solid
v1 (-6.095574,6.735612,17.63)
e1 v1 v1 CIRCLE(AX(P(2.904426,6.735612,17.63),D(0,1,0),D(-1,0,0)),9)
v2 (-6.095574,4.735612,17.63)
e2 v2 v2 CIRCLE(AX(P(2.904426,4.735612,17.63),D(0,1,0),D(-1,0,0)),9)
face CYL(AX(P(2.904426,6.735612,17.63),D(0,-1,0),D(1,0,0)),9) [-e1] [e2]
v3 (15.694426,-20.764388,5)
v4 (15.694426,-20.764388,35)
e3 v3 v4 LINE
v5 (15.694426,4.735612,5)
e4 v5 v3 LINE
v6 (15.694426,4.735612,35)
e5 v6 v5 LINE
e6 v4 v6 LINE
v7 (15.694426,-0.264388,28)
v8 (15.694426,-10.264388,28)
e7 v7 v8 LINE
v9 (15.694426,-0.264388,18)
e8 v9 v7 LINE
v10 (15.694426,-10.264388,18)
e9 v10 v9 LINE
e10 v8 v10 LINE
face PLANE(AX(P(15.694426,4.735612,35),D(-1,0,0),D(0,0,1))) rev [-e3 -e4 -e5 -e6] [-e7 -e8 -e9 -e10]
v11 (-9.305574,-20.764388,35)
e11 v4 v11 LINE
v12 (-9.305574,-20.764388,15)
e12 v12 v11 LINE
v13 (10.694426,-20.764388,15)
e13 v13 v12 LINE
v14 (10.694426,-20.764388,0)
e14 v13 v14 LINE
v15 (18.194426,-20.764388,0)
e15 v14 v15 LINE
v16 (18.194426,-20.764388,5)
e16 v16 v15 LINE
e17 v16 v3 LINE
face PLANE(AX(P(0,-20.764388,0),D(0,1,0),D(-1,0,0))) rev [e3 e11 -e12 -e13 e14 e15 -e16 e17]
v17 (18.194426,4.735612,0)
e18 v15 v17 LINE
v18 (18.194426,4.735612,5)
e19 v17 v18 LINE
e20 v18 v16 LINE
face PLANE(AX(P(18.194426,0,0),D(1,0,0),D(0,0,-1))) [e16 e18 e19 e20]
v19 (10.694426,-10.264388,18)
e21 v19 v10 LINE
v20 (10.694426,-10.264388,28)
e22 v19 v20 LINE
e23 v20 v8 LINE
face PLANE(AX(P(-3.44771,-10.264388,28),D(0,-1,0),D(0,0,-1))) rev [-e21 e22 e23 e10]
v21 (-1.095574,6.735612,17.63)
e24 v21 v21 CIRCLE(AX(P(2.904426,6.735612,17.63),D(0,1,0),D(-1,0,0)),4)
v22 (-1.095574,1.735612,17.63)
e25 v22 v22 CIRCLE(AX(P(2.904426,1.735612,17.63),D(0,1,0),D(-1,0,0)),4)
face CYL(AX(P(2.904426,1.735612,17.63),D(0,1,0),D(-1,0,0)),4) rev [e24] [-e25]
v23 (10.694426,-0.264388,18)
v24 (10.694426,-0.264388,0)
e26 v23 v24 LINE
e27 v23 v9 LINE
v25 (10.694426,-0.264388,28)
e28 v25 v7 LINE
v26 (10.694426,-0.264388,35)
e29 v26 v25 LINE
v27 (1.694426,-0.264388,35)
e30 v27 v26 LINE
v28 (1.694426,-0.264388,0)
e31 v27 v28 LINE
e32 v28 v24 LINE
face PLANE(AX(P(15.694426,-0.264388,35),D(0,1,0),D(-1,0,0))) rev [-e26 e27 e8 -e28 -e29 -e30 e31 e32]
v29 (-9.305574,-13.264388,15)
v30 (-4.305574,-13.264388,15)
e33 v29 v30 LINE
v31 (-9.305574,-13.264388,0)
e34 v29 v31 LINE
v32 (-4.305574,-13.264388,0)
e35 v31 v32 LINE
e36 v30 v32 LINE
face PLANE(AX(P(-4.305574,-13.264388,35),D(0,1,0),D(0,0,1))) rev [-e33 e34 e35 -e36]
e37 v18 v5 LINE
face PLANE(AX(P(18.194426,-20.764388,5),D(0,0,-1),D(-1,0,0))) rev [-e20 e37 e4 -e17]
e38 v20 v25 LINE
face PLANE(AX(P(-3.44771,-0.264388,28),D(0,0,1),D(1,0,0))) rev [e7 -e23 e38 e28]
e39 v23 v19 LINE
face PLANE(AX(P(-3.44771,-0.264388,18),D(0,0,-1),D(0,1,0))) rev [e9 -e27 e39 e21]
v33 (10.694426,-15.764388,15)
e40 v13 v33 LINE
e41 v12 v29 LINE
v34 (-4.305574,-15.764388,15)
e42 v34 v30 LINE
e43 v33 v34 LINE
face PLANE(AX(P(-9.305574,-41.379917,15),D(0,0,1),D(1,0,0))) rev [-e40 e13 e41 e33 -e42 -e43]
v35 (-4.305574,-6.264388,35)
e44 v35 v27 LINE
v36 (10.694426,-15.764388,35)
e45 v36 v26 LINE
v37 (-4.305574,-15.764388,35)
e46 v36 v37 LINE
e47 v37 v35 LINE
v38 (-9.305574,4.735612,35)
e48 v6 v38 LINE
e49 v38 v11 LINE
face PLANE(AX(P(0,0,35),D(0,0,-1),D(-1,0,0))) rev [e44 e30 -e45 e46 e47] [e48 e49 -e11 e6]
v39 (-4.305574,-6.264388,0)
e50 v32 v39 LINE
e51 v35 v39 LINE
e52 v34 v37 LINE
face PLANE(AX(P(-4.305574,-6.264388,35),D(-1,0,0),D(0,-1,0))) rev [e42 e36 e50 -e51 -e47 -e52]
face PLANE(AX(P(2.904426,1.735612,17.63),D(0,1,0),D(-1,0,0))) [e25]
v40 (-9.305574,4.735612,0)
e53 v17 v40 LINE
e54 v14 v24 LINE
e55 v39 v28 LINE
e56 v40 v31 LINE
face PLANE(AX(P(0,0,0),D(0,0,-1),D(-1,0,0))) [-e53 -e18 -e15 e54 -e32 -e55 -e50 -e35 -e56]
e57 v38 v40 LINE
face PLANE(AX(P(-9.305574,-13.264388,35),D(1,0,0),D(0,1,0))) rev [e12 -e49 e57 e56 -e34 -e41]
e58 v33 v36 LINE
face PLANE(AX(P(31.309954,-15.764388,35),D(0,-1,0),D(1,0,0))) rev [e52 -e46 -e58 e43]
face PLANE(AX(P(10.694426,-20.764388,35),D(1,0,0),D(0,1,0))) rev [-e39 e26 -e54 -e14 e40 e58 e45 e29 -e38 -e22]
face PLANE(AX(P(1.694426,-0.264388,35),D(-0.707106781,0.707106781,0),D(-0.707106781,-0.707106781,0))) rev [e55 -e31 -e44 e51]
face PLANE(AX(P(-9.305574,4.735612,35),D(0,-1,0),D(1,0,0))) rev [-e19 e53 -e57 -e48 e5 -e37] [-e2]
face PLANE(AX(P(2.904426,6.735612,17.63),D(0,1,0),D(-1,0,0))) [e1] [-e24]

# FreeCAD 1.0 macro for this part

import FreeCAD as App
import Part
import Sketcher
from FreeCAD import Vector

doc = App.newDocument("Part")
body = doc.addObject("PartDesign::Body", "Body")

# Sketch on XY plane
sketch1 = body.newObject("Sketcher::SketchObject", "Sketch")
sketch1.AttachmentSupport = (doc.getObject("XY_Plane"), [""])
sketch1.MapMode = "FlatFace"
sketch1.addGeometry(Part.LineSegment(Vector(15.694426, 4.735612, 0), Vector(-9.305574, 4.735612, 0)), False)
sketch1.addGeometry(Part.LineSegment(Vector(-9.305574, 4.735612, 0), Vector(-9.305574, -13.264388, 0)), False)
sketch1.addGeometry(Part.LineSegment(Vector(-9.305574, -13.264388, 0), Vector(-4.305574, -13.264388, 0)), False)
sketch1.addGeometry(Part.LineSegment(Vector(-4.305574, -13.264388, 0), Vector(-4.305574, -6.264388, 0)), False)
sketch1.addGeometry(Part.LineSegment(Vector(-4.305574, -6.264388, 0), Vector(1.694426, -0.264388, 0)), False)
sketch1.addGeometry(Part.LineSegment(Vector(1.694426, -0.264388, 0), Vector(15.694426, -0.264388, 0)), False)
sketch1.addGeometry(Part.LineSegment(Vector(15.694426, -0.264388, 0), Vector(15.694426, 4.735612, 0)), False)
sketch1.addConstraint(Sketcher.Constraint("Coincident", 0, 2, 1, 1))
sketch1.addConstraint(Sketcher.Constraint("Coincident", 1, 2, 2, 1))
sketch1.addConstraint(Sketcher.Constraint("Coincident", 2, 2, 3, 1))
sketch1.addConstraint(Sketcher.Constraint("Coincident", 3, 2, 4, 1))
sketch1.addConstraint(Sketcher.Constraint("Coincident", 4, 2, 5, 1))
sketch1.addConstraint(Sketcher.Constraint("Coincident", 5, 2, 6, 1))
sketch1.addConstraint(Sketcher.Constraint("Coincident", 6, 2, 0, 1))
sketch1.addConstraint(Sketcher.Constraint("Horizontal", 0))
sketch1.addConstraint(Sketcher.Constraint("Vertical", 1))
sketch1.addConstraint(Sketcher.Constraint("Horizontal", 2))
sketch1.addConstraint(Sketcher.Constraint("Vertical", 3))
sketch1.addConstraint(Sketcher.Constraint("Horizontal", 5))
sketch1.addConstraint(Sketcher.Constraint("Vertical", 6))
sketch1.addConstraint(Sketcher.Constraint("Equal", 2, 6))
sketch1.addConstraint(Sketcher.Constraint("DistanceX", 0, 2, 0, 1, 25.0))
sketch1.addConstraint(Sketcher.Constraint("DistanceX", 2, 1, 2, 2, 5.0))
sketch1.addConstraint(Sketcher.Constraint("DistanceX", 5, 1, 5, 2, 14.0))
sketch1.addConstraint(Sketcher.Constraint("DistanceY", 1, 2, 1, 1, 18.0))
sketch1.addConstraint(Sketcher.Constraint("DistanceY", 3, 1, 3, 2, 7.0))
sketch1.addConstraint(Sketcher.Constraint("DistanceY", -1, 1, 0, 2, 4.735612))
sketch1.addConstraint(Sketcher.Constraint("DistanceX", 0, 2, -1, 1, 9.305574))
pad1 = body.newObject("PartDesign::Pad", "Pad")
pad1.Profile = sketch1
pad1.Length = 35

# Sketch on XZ plane
sketch2 = body.newObject("Sketcher::SketchObject", "Sketch001")
sketch2.AttachmentSupport = (doc.getObject("XZ_Plane"), [""])
sketch2.MapMode = "FlatFace"
sketch2.AttachmentOffset = App.Placement(Vector(0, 0, -4.735612), App.Rotation())
sketch2.addGeometry(Part.Circle(Vector(2.904426, 17.63, 0), Vector(0, 0, 1), 9), False)
sketch2.addConstraint(Sketcher.Constraint("Diameter", 0, 18.0))
sketch2.addConstraint(Sketcher.Constraint("DistanceY", -1, 1, 0, 3, 17.63))
sketch2.addConstraint(Sketcher.Constraint("DistanceX", -1, 1, 0, 3, 2.904426))
pad2 = body.newObject("PartDesign::Pad", "Pad001")
pad2.Profile = sketch2
pad2.Length = 2
pad2.Reversed = True

# Sketch on XZ plane
sketch3 = body.newObject("Sketcher::SketchObject", "Sketch002")
sketch3.AttachmentSupport = (doc.getObject("XZ_Plane"), [""])
sketch3.MapMode = "FlatFace"
sketch3.AttachmentOffset = App.Placement(Vector(0, 0, -6.735612), App.Rotation())
sketch3.addGeometry(Part.Circle(Vector(2.904426, 17.63, 0), Vector(0, 0, 1), 4), False)
sketch3.addConstraint(Sketcher.Constraint("Diameter", 0, 8.0))
sketch3.addConstraint(Sketcher.Constraint("DistanceY", -1, 1, 0, 3, 17.63))
sketch3.addConstraint(Sketcher.Constraint("DistanceX", -1, 1, 0, 3, 2.904426))
pocket1 = body.newObject("PartDesign::Pocket", "Pocket")
pocket1.Profile = sketch3
pocket1.Length = 5
pocket1.Reversed = True

# Sketch on XZ plane
sketch4 = body.newObject("Sketcher::SketchObject", "Sketch003")
sketch4.AttachmentSupport = (doc.getObject("XZ_Plane"), [""])
sketch4.MapMode = "FlatFace"
sketch4.AttachmentOffset = App.Placement(Vector(0, 0, 0.264388), App.Rotation())
sketch4.addGeometry(Part.LineSegment(Vector(10.694426, 35, 0), Vector(10.694426, 0, 0)), False)
sketch4.addGeometry(Part.LineSegment(Vector(10.694426, 0, 0), Vector(15.694426, 0, 0)), False)
sketch4.addGeometry(Part.LineSegment(Vector(15.694426, 0, 0), Vector(15.694426, 35, 0)), False)
sketch4.addGeometry(Part.LineSegment(Vector(15.694426, 35, 0), Vector(10.694426, 35, 0)), False)
sketch4.addConstraint(Sketcher.Constraint("Coincident", 0, 2, 1, 1))
sketch4.addConstraint(Sketcher.Constraint("Coincident", 1, 2, 2, 1))
sketch4.addConstraint(Sketcher.Constraint("Coincident", 2, 2, 3, 1))
sketch4.addConstraint(Sketcher.Constraint("Coincident", 3, 2, 0, 1))
sketch4.addConstraint(Sketcher.Constraint("Vertical", 0))
sketch4.addConstraint(Sketcher.Constraint("Horizontal", 1))
sketch4.addConstraint(Sketcher.Constraint("Vertical", 2))
sketch4.addConstraint(Sketcher.Constraint("Horizontal", 3))
sketch4.addConstraint(Sketcher.Constraint("PointOnObject", 0, 2, -1))
sketch4.addConstraint(Sketcher.Constraint("DistanceX", 1, 1, 1, 2, 5.0))
sketch4.addConstraint(Sketcher.Constraint("DistanceY", 0, 2, 0, 1, 35.0))
sketch4.addConstraint(Sketcher.Constraint("DistanceX", -1, 1, 0, 2, 10.694426))
pad3 = body.newObject("PartDesign::Pad", "Pad002")
pad3.Profile = sketch4
pad3.Length = 20.5

# Sketch on YZ plane
sketch5 = body.newObject("Sketcher::SketchObject", "Sketch004")
sketch5.AttachmentSupport = (doc.getObject("YZ_Plane"), [""])
sketch5.MapMode = "FlatFace"
sketch5.AttachmentOffset = App.Placement(Vector(0, 0, 15.694426), App.Rotation())
sketch5.addGeometry(Part.LineSegment(Vector(4.735612, 5, 0), Vector(-20.764388, 5, 0)), False)
sketch5.addGeometry(Part.LineSegment(Vector(-20.764388, 5, 0), Vector(-20.764388, 0, 0)), False)
sketch5.addGeometry(Part.LineSegment(Vector(-20.764388, 0, 0), Vector(4.735612, 0, 0)), False)
sketch5.addGeometry(Part.LineSegment(Vector(4.735612, 0, 0), Vector(4.735612, 5, 0)), False)
sketch5.addConstraint(Sketcher.Constraint("Coincident", 0, 2, 1, 1))
sketch5.addConstraint(Sketcher.Constraint("Coincident", 1, 2, 2, 1))
sketch5.addConstraint(Sketcher.Constraint("Coincident", 2, 2, 3, 1))
sketch5.addConstraint(Sketcher.Constraint("Coincident", 3, 2, 0, 1))
sketch5.addConstraint(Sketcher.Constraint("Horizontal", 0))
sketch5.addConstraint(Sketcher.Constraint("Vertical", 1))
sketch5.addConstraint(Sketcher.Constraint("Horizontal", 2))
sketch5.addConstraint(Sketcher.Constraint("Vertical", 3))
sketch5.addConstraint(Sketcher.Constraint("PointOnObject", 1, 2, -1))
sketch5.addConstraint(Sketcher.Constraint("DistanceY", 1, 2, 1, 1, 5.0))
sketch5.addConstraint(Sketcher.Constraint("DistanceX", 0, 2, 0, 1, 25.5))
sketch5.addConstraint(Sketcher.Constraint("DistanceX", 0, 2, -1, 1, 20.764388))
pad4 = body.newObject("PartDesign::Pad", "Pad003")
pad4.Profile = sketch5
pad4.Length = 2.5

# Sketch on XZ plane
sketch6 = body.newObject("Sketcher::SketchObject", "Sketch005")
sketch6.AttachmentSupport = (doc.getObject("XZ_Plane"), [""])
sketch6.MapMode = "FlatFace"
sketch6.AttachmentOffset = App.Placement(Vector(0, 0, 13.264388), App.Rotation())
sketch6.addGeometry(Part.LineSegment(Vector(-9.305574, 35, 0), Vector(-9.305574, 15, 0)), False)
sketch6.addGeometry(Part.LineSegment(Vector(-9.305574, 15, 0), Vector(-4.305574, 15, 0)), False)
sketch6.addGeometry(Part.LineSegment(Vector(-4.305574, 15, 0), Vector(-4.305574, 35, 0)), False)
sketch6.addGeometry(Part.LineSegment(Vector(-4.305574, 35, 0), Vector(-9.305574, 35, 0)), False)
sketch6.addConstraint(Sketcher.Constraint("Coincident", 0, 2, 1, 1))
sketch6.addConstraint(Sketcher.Constraint("Coincident", 1, 2, 2, 1))
sketch6.addConstraint(Sketcher.Constraint("Coincident", 2, 2, 3, 1))
sketch6.addConstraint(Sketcher.Constraint("Coincident", 3, 2, 0, 1))
sketch6.addConstraint(Sketcher.Constraint("Vertical", 0))
sketch6.addConstraint(Sketcher.Constraint("Horizontal", 1))
sketch6.addConstraint(Sketcher.Constraint("Vertical", 2))
sketch6.addConstraint(Sketcher.Constraint("Horizontal", 3))
sketch6.addConstraint(Sketcher.Constraint("DistanceX", 1, 1, 1, 2, 5.0))
sketch6.addConstraint(Sketcher.Constraint("DistanceY", 0, 2, 0, 1, 20.0))
sketch6.addConstraint(Sketcher.Constraint("DistanceY", -1, 1, 0, 2, 15.0))
sketch6.addConstraint(Sketcher.Constraint("DistanceX", 0, 2, -1, 1, 9.305574))
pad5 = body.newObject("PartDesign::Pad", "Pad004")
pad5.Profile = sketch6
pad5.Length = 7.5

# Sketch on YZ plane
sketch7 = body.newObject("Sketcher::SketchObject", "Sketch006")
sketch7.AttachmentSupport = (doc.getObject("YZ_Plane"), [""])
sketch7.MapMode = "FlatFace"
sketch7.AttachmentOffset = App.Placement(Vector(0, 0, -4.305574), App.Rotation())
sketch7.addGeometry(Part.LineSegment(Vector(-15.764388, 35, 0), Vector(-20.764388, 35, 0)), False)
sketch7.addGeometry(Part.LineSegment(Vector(-20.764388, 35, 0), Vector(-20.764388, 15, 0)), False)
sketch7.addGeometry(Part.LineSegment(Vector(-20.764388, 15, 0), Vector(-15.764388, 15, 0)), False)
sketch7.addGeometry(Part.LineSegment(Vector(-15.764388, 15, 0), Vector(-15.764388, 35, 0)), False)
sketch7.addConstraint(Sketcher.Constraint("Coincident", 0, 2, 1, 1))
sketch7.addConstraint(Sketcher.Constraint("Coincident", 1, 2, 2, 1))
sketch7.addConstraint(Sketcher.Constraint("Coincident", 2, 2, 3, 1))
sketch7.addConstraint(Sketcher.Constraint("Coincident", 3, 2, 0, 1))
sketch7.addConstraint(Sketcher.Constraint("Horizontal", 0))
sketch7.addConstraint(Sketcher.Constraint("Vertical", 1))
sketch7.addConstraint(Sketcher.Constraint("Horizontal", 2))
sketch7.addConstraint(Sketcher.Constraint("Vertical", 3))
sketch7.addConstraint(Sketcher.Constraint("DistanceX", 0, 2, 0, 1, 5.0))
sketch7.addConstraint(Sketcher.Constraint("DistanceY", 1, 2, 1, 1, 20.0))
sketch7.addConstraint(Sketcher.Constraint("DistanceY", -1, 1, 0, 2, 35.0))
sketch7.addConstraint(Sketcher.Constraint("DistanceX", 0, 2, -1, 1, 20.764388))
pad6 = body.newObject("PartDesign::Pad", "Pad005")
pad6.Profile = sketch7
pad6.Length = 15

# Sketch on YZ plane
sketch8 = body.newObject("Sketcher::SketchObject", "Sketch007")
sketch8.AttachmentSupport = (doc.getObject("YZ_Plane"), [""])
sketch8.MapMode = "FlatFace"
sketch8.AttachmentOffset = App.Placement(Vector(0, 0, 15.694426), App.Rotation())
sketch8.addGeometry(Part.LineSegment(Vector(-0.264388, 28, 0), Vector(-10.264388, 28, 0)), False)
sketch8.addGeometry(Part.LineSegment(Vector(-10.264388, 28, 0), Vector(-10.264388, 18, 0)), False)
sketch8.addGeometry(Part.LineSegment(Vector(-10.264388, 18, 0), Vector(-0.264388, 18, 0)), False)
sketch8.addGeometry(Part.LineSegment(Vector(-0.264388, 18, 0), Vector(-0.264388, 28, 0)), False)
sketch8.addConstraint(Sketcher.Constraint("Coincident", 0, 2, 1, 1))
sketch8.addConstraint(Sketcher.Constraint("Coincident", 1, 2, 2, 1))
sketch8.addConstraint(Sketcher.Constraint("Coincident", 2, 2, 3, 1))
sketch8.addConstraint(Sketcher.Constraint("Coincident", 3, 2, 0, 1))
sketch8.addConstraint(Sketcher.Constraint("Horizontal", 0))
sketch8.addConstraint(Sketcher.Constraint("Vertical", 1))
sketch8.addConstraint(Sketcher.Constraint("Horizontal", 2))
sketch8.addConstraint(Sketcher.Constraint("Vertical", 3))
sketch8.addConstraint(Sketcher.Constraint("Equal", 2, 1))
sketch8.addConstraint(Sketcher.Constraint("DistanceX", 0, 2, 0, 1, 10.0))
sketch8.addConstraint(Sketcher.Constraint("DistanceY", -1, 1, 0, 2, 28.0))
sketch8.addConstraint(Sketcher.Constraint("DistanceX", 0, 2, -1, 1, 10.264388))
pocket2 = body.newObject("PartDesign::Pocket", "Pocket001")
pocket2.Profile = sketch8
pocket2.Length = 5

doc.recompute()
